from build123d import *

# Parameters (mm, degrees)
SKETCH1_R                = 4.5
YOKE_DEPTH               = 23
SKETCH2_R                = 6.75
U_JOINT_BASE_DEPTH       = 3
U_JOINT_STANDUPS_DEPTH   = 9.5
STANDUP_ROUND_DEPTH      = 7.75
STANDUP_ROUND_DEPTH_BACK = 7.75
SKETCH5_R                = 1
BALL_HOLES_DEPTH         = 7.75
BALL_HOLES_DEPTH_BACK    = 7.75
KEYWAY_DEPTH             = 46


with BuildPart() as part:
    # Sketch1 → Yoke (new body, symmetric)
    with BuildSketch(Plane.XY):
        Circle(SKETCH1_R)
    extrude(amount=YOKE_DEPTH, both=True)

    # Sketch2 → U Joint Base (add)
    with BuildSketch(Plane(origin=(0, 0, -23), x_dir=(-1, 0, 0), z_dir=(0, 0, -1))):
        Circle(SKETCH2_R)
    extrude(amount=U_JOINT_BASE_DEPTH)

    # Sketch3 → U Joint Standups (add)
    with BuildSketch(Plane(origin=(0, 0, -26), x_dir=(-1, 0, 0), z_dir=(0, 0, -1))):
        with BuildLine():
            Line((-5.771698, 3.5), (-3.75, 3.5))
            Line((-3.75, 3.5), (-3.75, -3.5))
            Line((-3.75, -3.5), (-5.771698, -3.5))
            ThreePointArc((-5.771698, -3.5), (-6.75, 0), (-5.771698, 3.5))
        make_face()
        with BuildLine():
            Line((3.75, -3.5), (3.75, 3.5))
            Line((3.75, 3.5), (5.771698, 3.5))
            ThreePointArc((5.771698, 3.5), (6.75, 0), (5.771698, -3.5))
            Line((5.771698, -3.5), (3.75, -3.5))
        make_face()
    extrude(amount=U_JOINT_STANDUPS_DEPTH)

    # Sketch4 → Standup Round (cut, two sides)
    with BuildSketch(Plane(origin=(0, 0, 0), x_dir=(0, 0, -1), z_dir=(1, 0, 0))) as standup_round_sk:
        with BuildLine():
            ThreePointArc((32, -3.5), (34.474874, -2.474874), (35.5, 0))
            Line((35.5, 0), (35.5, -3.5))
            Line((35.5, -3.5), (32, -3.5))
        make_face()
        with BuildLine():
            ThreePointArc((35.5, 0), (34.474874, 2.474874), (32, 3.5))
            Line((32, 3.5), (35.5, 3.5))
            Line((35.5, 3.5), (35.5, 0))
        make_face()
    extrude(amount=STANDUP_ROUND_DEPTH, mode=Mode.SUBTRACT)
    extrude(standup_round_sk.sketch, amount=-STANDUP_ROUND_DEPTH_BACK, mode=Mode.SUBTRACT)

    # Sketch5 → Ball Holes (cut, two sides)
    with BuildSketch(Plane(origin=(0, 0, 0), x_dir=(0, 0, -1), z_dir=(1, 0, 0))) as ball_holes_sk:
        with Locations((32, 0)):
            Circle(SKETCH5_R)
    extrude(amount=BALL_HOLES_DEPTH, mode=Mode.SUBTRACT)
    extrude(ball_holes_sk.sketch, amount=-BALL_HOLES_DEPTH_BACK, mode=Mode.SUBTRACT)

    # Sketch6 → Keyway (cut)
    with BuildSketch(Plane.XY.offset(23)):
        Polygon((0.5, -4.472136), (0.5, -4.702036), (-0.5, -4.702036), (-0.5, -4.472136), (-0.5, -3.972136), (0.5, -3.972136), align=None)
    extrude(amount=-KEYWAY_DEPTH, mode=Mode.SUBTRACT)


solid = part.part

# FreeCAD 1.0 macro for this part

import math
import FreeCAD as App
import Part
import Sketcher
from FreeCAD import Vector
Q = App.Units.Quantity


def add_polygon(sketch, points):
    """Adds a closed chain of lines whose ends are joined by coincident constraints."""
    first, n = sketch.GeometryCount, len(points)
    for a, b in zip(points, points[1:] + points[:1]):
        sketch.addGeometry(Part.LineSegment(App.Vector(*a, 0), App.Vector(*b, 0)), False)
    for i in range(n):
        sketch.addConstraint(Sketcher.Constraint("Coincident", first + i, 2, first + (i + 1) % n, 1))

doc = App.newDocument("Part")
body = doc.addObject("PartDesign::Body", "Body")

# Sketch on XY plane
sketch1 = doc.addObject("Sketcher::SketchObject", "Sketch")
body.addObject(sketch1)
sketch1.AttachmentSupport = (doc.XY_Plane, [""])
sketch1.MapMode = "FlatFace"
sketch1.addGeometry(Part.Circle(Vector(0, 0, 0), Vector(0, 0, 1), 4.5), False)
sketch1.addConstraint(Sketcher.Constraint("Coincident", 0, 3, -1, 1))
sketch1.addConstraint(Sketcher.Constraint("Diameter", 0, Q("9 mm")))
pad1 = doc.addObject("PartDesign::Pad", "Pad")
body.addObject(pad1)
pad1.Profile = sketch1
pad1.Length = 46
pad1.Midplane = True

# Sketch on XY plane
sketch2 = doc.addObject("Sketcher::SketchObject", "Sketch001")
body.addObject(sketch2)
sketch2.AttachmentSupport = (doc.XY_Plane, [""])
sketch2.MapMode = "FlatFace"
sketch2.AttachmentOffset = App.Placement(Vector(0, 0, -23), App.Rotation())
sketch2.addGeometry(Part.Circle(Vector(0, 0, 0), Vector(0, 0, 1), 7), False)
sketch2.addConstraint(Sketcher.Constraint("Coincident", 0, 3, -1, 1))
sketch2.addConstraint(Sketcher.Constraint("Diameter", 0, Q("13.5 mm")))
pad2 = doc.addObject("PartDesign::Pad", "Pad001")
body.addObject(pad2)
pad2.Profile = sketch2
pad2.Length = 3
pad2.Reversed = True

# Sketch on XY plane
sketch3 = doc.addObject("Sketcher::SketchObject", "Sketch002")
body.addObject(sketch3)
sketch3.AttachmentSupport = (doc.XY_Plane, [""])
sketch3.MapMode = "FlatFace"
sketch3.AttachmentOffset = App.Placement(Vector(0, 0, -26), App.Rotation())
sketch3.addGeometry(Part.LineSegment(Vector(3.8, 3.5, 0), Vector(5.8, 3.5, 0)), False)
sketch3.addGeometry(Part.ArcOfCircle(Part.Circle(Vector(0, 0, 0), Vector(0, 0, 1), 6.7), math.radians(-31), math.radians(31)), False)
sketch3.addGeometry(Part.LineSegment(Vector(5.8, -3.5, 0), Vector(3.8, -3.5, 0)), False)
sketch3.addGeometry(Part.LineSegment(Vector(3.8, -3.5, 0), Vector(3.8, 3.5, 0)), False)
sketch3.addGeometry(Part.LineSegment(Vector(-3.8, 3.5, 0), Vector(-3.8, -3.5, 0)), False)
sketch3.addGeometry(Part.LineSegment(Vector(-3.8, -3.5, 0), Vector(-5.8, -3.5, 0)), False)
sketch3.addGeometry(Part.ArcOfCircle(Part.Circle(Vector(0, 0, 0), Vector(0, 0, 1), 6.7), math.radians(149), math.radians(211)), False)
sketch3.addGeometry(Part.LineSegment(Vector(-5.8, 3.5, 0), Vector(-3.8, 3.5, 0)), False)
sketch3.addConstraint(Sketcher.Constraint("Coincident", 0, 2, 1, 2))
sketch3.addConstraint(Sketcher.Constraint("Coincident", 1, 1, 2, 1))
sketch3.addConstraint(Sketcher.Constraint("Coincident", 2, 2, 3, 1))
sketch3.addConstraint(Sketcher.Constraint("Coincident", 3, 2, 0, 1))
sketch3.addConstraint(Sketcher.Constraint("Coincident", 4, 2, 5, 1))
sketch3.addConstraint(Sketcher.Constraint("Coincident", 5, 2, 6, 2))
sketch3.addConstraint(Sketcher.Constraint("Coincident", 6, 1, 7, 1))
sketch3.addConstraint(Sketcher.Constraint("Coincident", 7, 2, 4, 1))
sketch3.addConstraint(Sketcher.Constraint("Horizontal", 0))
sketch3.addConstraint(Sketcher.Constraint("Horizontal", 2))
sketch3.addConstraint(Sketcher.Constraint("Vertical", 3))
sketch3.addConstraint(Sketcher.Constraint("Vertical", 4))
sketch3.addConstraint(Sketcher.Constraint("Horizontal", 5))
sketch3.addConstraint(Sketcher.Constraint("Horizontal", 7))
sketch3.addConstraint(Sketcher.Constraint("Coincident", 1, 3, -1, 1))
sketch3.addConstraint(Sketcher.Constraint("Coincident", 6, 3, -1, 1))
sketch3.addConstraint(Sketcher.Constraint("Equal", 1, 6))
sketch3.addConstraint(Sketcher.Constraint("Symmetric", 3, 2, 4, 2, -1, 1))
sketch3.addConstraint(Sketcher.Constraint("Horizontal", 2, 2, 4, 2))
sketch3.addConstraint(Sketcher.Constraint("Horizontal", 3, 2, 6, 1))
sketch3.addConstraint(Sketcher.Constraint("DistanceY", 3, 1, 3, 2, Q("7 mm")))
sketch3.addConstraint(Sketcher.Constraint("Radius", 1, Q("6.749999 mm")))
sketch3.addConstraint(Sketcher.Constraint("DistanceX", 4, 2, 2, 2, Q("7.5 mm")))
pad3 = doc.addObject("PartDesign::Pad", "Pad002")
body.addObject(pad3)
pad3.Profile = sketch3
pad3.Length = 9.5
pad3.Reversed = True

# Sketch on YZ plane
sketch4 = doc.addObject("Sketcher::SketchObject", "Sketch003")
body.addObject(sketch4)
sketch4.AttachmentSupport = (doc.YZ_Plane, [""])
sketch4.MapMode = "FlatFace"
sketch4.addGeometry(Part.ArcOfCircle(Part.Circle(Vector(0, -32, 0), Vector(0, 0, 1), 3.5), math.radians(180), math.radians(270)), False)
sketch4.addGeometry(Part.LineSegment(Vector(-3.5, -32, 0), Vector(-3.5, -35.5, 0)), False)
sketch4.addGeometry(Part.LineSegment(Vector(-3.5, -35.5, 0), Vector(0, -35.5, 0)), False)
sketch4.addGeometry(Part.ArcOfCircle(Part.Circle(Vector(0, -32, 0), Vector(0, 0, 1), 3.5), math.radians(-90), math.radians(0)), False)
sketch4.addGeometry(Part.LineSegment(Vector(0, -35.5, 0), Vector(3.5, -35.5, 0)), False)
sketch4.addGeometry(Part.LineSegment(Vector(3.5, -35.5, 0), Vector(3.5, -32, 0)), False)
sketch4.addConstraint(Sketcher.Constraint("Tangent", 0, 1, 1, 1))
sketch4.addConstraint(Sketcher.Constraint("Coincident", 1, 2, 2, 1))
sketch4.addConstraint(Sketcher.Constraint("Tangent", 2, 2, 0, 2))
sketch4.addConstraint(Sketcher.Constraint("Tangent", 3, 1, 4, 1))
sketch4.addConstraint(Sketcher.Constraint("Coincident", 4, 2, 5, 1))
sketch4.addConstraint(Sketcher.Constraint("Tangent", 5, 2, 3, 2))
sketch4.addConstraint(Sketcher.Constraint("Vertical", 1))
sketch4.addConstraint(Sketcher.Constraint("Horizontal", 2))
sketch4.addConstraint(Sketcher.Constraint("Horizontal", 4))
sketch4.addConstraint(Sketcher.Constraint("Vertical", 5))
sketch4.addConstraint(Sketcher.Constraint("Coincident", 3, 3, 0, 3))
sketch4.addConstraint(Sketcher.Constraint("Equal", 0, 3))
sketch4.addConstraint(Sketcher.Constraint("PointOnObject", 0, 3, -2))
sketch4.addConstraint(Sketcher.Constraint("Radius", 0, Q("3.499999 mm")))
sketch4.addConstraint(Sketcher.Constraint("DistanceY", 0, 3, -1, 1, Q("32.000001 mm")))
pocket1 = doc.addObject("PartDesign::Pocket", "Pocket")
body.addObject(pocket1)
pocket1.Profile = sketch4
pocket1.Type = "ThroughAll"
pocket1.Midplane = True

# Sketch on YZ plane
sketch5 = doc.addObject("Sketcher::SketchObject", "Sketch004")
body.addObject(sketch5)
sketch5.AttachmentSupport = (doc.YZ_Plane, [""])
sketch5.MapMode = "FlatFace"
sketch5.addGeometry(Part.Circle(Vector(0, -32, 0), Vector(0, 0, 1), 1), False)
sketch5.addConstraint(Sketcher.Constraint("PointOnObject", 0, 3, -2))
sketch5.addConstraint(Sketcher.Constraint("Diameter", 0, Q("2 mm")))
sketch5.addConstraint(Sketcher.Constraint("DistanceY", 0, 3, -1, 1, Q("32 mm")))
pocket2 = doc.addObject("PartDesign::Pocket", "Pocket001")
body.addObject(pocket2)
pocket2.Profile = sketch5
pocket2.Type = "ThroughAll"
pocket2.Midplane = True

# Sketch on XY plane
sketch6 = doc.addObject("Sketcher::SketchObject", "Sketch005")
body.addObject(sketch6)
sketch6.AttachmentSupport = (doc.XY_Plane, [""])
sketch6.MapMode = "FlatFace"
sketch6.AttachmentOffset = App.Placement(Vector(0, 0, 23), App.Rotation())
add_polygon(sketch6, [(0.5, -4.7), (0.5, -4), (-0.5, -4), (-0.5, -4.7)])  # lines 0-3
sketch6.addConstraint(Sketcher.Constraint("Vertical", 0))
sketch6.addConstraint(Sketcher.Constraint("Horizontal", 1))
sketch6.addConstraint(Sketcher.Constraint("Vertical", 2))
sketch6.addConstraint(Sketcher.Constraint("Horizontal", 3))
sketch6.addConstraint(Sketcher.Constraint("DistanceX", 1, 2, 1, 1, Q("1 mm")))
sketch6.addConstraint(Sketcher.Constraint("DistanceX", -1, 1, 0, 2, Q("0.5 mm")))
sketch6.addConstraint(Sketcher.Constraint("DistanceY", 0, 1, 0, 2, Q("0.7299 mm")))
sketch6.addConstraint(Sketcher.Constraint("DistanceY", 0, 2, -1, 1, Q("3.972136 mm")))
pocket3 = doc.addObject("PartDesign::Pocket", "Pocket002")
body.addObject(pocket3)
pocket3.Profile = sketch6
pocket3.Length = 46

doc.recompute()
